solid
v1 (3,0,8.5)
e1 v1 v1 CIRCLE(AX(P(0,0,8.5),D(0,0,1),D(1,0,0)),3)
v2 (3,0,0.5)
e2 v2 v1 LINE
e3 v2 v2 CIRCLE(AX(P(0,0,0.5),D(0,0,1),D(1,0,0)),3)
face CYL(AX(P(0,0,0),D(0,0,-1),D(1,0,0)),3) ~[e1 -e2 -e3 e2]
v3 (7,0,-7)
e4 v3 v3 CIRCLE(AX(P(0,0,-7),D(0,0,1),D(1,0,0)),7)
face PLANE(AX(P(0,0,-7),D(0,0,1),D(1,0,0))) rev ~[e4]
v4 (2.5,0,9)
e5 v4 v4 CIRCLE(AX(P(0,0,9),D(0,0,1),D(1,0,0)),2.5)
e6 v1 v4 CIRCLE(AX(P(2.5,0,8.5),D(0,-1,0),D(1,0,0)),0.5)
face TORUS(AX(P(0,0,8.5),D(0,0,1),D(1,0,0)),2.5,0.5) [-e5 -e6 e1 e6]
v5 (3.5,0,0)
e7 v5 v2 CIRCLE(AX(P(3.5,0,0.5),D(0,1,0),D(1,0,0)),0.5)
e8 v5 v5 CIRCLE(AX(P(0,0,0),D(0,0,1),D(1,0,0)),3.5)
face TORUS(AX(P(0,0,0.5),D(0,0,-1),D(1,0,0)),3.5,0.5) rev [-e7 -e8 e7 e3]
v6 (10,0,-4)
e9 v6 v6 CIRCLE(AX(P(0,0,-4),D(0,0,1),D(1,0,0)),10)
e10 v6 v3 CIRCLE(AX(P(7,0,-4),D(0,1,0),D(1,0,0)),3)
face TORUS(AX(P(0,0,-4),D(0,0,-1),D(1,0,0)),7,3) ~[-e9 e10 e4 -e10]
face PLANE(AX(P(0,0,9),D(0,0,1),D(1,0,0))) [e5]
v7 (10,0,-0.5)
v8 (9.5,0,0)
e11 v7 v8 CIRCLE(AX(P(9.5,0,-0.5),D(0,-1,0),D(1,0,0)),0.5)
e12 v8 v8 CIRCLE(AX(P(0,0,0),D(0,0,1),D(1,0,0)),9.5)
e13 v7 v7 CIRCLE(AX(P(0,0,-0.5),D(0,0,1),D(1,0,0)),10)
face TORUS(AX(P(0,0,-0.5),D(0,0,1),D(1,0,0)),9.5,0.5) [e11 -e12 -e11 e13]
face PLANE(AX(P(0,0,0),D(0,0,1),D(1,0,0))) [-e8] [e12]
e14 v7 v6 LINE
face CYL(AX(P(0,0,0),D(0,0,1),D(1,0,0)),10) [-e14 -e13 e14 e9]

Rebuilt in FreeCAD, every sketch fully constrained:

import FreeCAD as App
import Part
import Sketcher

V = App.Vector


def edges_at(feature, points):
    """Names of the edges that pass closest to the given points."""
    edges = feature.Shape.Edges
    near = lambda p: min(range(len(edges)), key=lambda i: edges[i].distToShape(Part.Vertex(*p))[0])
    return sorted({f"Edge{near(p) + 1}" for p in points})

doc = App.newDocument("Part")
params = doc.addObject("Spreadsheet::Sheet", "Params")
for row, (alias, value) in enumerate([
    ("sketch1_diameter", "20 mm"),
    ("pad1_length", "7 mm"),
    ("sketch2_diameter", "6 mm"),
    ("pad2_length", "9 mm"),
    ("fillet_radius", "3 mm"),
    ("fillet2_radius", "0.5 mm"),
], start=1):
    params.set(f"A{row}", alias)
    params.set(f"B{row}", "=" + value)
    params.setAlias(f"B{row}", alias)

body = doc.addObject("PartDesign::Body", "Body")

# Sketch on XY plane
sketch1 = doc.addObject("Sketcher::SketchObject", "Sketch")
body.addObject(sketch1)
sketch1.AttachmentSupport = (doc.XY_Plane, [""])
sketch1.MapMode = "FlatFace"
sketch1.addGeometry(Part.Circle(V(0, 0, 0), V(0, 0, 1), 10), False)
sketch1.addConstraint([
    Sketcher.Constraint("Coincident", 0, 3, -1, 1),
    Sketcher.Constraint("Diameter", 0, 20.0),
])
sketch1.setExpression("Constraints[1]", "Params.sketch1_diameter")
pad1 = doc.addObject("PartDesign::Pad", "Pad")
body.addObject(pad1)
pad1.Profile = sketch1
pad1.setExpression("Length", "Params.pad1_length")
pad1.Reversed = True

# Sketch on XY plane
sketch2 = doc.addObject("Sketcher::SketchObject", "Sketch001")
body.addObject(sketch2)
sketch2.AttachmentSupport = (doc.XY_Plane, [""])
sketch2.MapMode = "FlatFace"
sketch2.addGeometry(Part.Circle(V(0, 0, 0), V(0, 0, 1), 3), False)
sketch2.addConstraint([
    Sketcher.Constraint("Coincident", 0, 3, -1, 1),
    Sketcher.Constraint("Diameter", 0, 6.0),
])
sketch2.setExpression("Constraints[1]", "Params.sketch2_diameter")
pad2 = doc.addObject("PartDesign::Pad", "Pad001")
body.addObject(pad2)
pad2.Profile = sketch2
pad2.setExpression("Length", "Params.pad2_length")
doc.recompute()

fillet = doc.addObject("PartDesign::Fillet", "Fillet")
body.addObject(fillet)
fillet.Base = (pad2, edges_at(pad2, [(-10, 0, -7)]))
fillet.setExpression("Radius", "Params.fillet_radius")
doc.recompute()

fillet2 = doc.addObject("PartDesign::Fillet", "Fillet001")
body.addObject(fillet2)
fillet2.Base = (fillet, edges_at(fillet, [(-10, 0, 0), (-3, 0, 9), (-3, 0, 0)]))
fillet2.setExpression("Radius", "Params.fillet2_radius")

doc.recompute()
